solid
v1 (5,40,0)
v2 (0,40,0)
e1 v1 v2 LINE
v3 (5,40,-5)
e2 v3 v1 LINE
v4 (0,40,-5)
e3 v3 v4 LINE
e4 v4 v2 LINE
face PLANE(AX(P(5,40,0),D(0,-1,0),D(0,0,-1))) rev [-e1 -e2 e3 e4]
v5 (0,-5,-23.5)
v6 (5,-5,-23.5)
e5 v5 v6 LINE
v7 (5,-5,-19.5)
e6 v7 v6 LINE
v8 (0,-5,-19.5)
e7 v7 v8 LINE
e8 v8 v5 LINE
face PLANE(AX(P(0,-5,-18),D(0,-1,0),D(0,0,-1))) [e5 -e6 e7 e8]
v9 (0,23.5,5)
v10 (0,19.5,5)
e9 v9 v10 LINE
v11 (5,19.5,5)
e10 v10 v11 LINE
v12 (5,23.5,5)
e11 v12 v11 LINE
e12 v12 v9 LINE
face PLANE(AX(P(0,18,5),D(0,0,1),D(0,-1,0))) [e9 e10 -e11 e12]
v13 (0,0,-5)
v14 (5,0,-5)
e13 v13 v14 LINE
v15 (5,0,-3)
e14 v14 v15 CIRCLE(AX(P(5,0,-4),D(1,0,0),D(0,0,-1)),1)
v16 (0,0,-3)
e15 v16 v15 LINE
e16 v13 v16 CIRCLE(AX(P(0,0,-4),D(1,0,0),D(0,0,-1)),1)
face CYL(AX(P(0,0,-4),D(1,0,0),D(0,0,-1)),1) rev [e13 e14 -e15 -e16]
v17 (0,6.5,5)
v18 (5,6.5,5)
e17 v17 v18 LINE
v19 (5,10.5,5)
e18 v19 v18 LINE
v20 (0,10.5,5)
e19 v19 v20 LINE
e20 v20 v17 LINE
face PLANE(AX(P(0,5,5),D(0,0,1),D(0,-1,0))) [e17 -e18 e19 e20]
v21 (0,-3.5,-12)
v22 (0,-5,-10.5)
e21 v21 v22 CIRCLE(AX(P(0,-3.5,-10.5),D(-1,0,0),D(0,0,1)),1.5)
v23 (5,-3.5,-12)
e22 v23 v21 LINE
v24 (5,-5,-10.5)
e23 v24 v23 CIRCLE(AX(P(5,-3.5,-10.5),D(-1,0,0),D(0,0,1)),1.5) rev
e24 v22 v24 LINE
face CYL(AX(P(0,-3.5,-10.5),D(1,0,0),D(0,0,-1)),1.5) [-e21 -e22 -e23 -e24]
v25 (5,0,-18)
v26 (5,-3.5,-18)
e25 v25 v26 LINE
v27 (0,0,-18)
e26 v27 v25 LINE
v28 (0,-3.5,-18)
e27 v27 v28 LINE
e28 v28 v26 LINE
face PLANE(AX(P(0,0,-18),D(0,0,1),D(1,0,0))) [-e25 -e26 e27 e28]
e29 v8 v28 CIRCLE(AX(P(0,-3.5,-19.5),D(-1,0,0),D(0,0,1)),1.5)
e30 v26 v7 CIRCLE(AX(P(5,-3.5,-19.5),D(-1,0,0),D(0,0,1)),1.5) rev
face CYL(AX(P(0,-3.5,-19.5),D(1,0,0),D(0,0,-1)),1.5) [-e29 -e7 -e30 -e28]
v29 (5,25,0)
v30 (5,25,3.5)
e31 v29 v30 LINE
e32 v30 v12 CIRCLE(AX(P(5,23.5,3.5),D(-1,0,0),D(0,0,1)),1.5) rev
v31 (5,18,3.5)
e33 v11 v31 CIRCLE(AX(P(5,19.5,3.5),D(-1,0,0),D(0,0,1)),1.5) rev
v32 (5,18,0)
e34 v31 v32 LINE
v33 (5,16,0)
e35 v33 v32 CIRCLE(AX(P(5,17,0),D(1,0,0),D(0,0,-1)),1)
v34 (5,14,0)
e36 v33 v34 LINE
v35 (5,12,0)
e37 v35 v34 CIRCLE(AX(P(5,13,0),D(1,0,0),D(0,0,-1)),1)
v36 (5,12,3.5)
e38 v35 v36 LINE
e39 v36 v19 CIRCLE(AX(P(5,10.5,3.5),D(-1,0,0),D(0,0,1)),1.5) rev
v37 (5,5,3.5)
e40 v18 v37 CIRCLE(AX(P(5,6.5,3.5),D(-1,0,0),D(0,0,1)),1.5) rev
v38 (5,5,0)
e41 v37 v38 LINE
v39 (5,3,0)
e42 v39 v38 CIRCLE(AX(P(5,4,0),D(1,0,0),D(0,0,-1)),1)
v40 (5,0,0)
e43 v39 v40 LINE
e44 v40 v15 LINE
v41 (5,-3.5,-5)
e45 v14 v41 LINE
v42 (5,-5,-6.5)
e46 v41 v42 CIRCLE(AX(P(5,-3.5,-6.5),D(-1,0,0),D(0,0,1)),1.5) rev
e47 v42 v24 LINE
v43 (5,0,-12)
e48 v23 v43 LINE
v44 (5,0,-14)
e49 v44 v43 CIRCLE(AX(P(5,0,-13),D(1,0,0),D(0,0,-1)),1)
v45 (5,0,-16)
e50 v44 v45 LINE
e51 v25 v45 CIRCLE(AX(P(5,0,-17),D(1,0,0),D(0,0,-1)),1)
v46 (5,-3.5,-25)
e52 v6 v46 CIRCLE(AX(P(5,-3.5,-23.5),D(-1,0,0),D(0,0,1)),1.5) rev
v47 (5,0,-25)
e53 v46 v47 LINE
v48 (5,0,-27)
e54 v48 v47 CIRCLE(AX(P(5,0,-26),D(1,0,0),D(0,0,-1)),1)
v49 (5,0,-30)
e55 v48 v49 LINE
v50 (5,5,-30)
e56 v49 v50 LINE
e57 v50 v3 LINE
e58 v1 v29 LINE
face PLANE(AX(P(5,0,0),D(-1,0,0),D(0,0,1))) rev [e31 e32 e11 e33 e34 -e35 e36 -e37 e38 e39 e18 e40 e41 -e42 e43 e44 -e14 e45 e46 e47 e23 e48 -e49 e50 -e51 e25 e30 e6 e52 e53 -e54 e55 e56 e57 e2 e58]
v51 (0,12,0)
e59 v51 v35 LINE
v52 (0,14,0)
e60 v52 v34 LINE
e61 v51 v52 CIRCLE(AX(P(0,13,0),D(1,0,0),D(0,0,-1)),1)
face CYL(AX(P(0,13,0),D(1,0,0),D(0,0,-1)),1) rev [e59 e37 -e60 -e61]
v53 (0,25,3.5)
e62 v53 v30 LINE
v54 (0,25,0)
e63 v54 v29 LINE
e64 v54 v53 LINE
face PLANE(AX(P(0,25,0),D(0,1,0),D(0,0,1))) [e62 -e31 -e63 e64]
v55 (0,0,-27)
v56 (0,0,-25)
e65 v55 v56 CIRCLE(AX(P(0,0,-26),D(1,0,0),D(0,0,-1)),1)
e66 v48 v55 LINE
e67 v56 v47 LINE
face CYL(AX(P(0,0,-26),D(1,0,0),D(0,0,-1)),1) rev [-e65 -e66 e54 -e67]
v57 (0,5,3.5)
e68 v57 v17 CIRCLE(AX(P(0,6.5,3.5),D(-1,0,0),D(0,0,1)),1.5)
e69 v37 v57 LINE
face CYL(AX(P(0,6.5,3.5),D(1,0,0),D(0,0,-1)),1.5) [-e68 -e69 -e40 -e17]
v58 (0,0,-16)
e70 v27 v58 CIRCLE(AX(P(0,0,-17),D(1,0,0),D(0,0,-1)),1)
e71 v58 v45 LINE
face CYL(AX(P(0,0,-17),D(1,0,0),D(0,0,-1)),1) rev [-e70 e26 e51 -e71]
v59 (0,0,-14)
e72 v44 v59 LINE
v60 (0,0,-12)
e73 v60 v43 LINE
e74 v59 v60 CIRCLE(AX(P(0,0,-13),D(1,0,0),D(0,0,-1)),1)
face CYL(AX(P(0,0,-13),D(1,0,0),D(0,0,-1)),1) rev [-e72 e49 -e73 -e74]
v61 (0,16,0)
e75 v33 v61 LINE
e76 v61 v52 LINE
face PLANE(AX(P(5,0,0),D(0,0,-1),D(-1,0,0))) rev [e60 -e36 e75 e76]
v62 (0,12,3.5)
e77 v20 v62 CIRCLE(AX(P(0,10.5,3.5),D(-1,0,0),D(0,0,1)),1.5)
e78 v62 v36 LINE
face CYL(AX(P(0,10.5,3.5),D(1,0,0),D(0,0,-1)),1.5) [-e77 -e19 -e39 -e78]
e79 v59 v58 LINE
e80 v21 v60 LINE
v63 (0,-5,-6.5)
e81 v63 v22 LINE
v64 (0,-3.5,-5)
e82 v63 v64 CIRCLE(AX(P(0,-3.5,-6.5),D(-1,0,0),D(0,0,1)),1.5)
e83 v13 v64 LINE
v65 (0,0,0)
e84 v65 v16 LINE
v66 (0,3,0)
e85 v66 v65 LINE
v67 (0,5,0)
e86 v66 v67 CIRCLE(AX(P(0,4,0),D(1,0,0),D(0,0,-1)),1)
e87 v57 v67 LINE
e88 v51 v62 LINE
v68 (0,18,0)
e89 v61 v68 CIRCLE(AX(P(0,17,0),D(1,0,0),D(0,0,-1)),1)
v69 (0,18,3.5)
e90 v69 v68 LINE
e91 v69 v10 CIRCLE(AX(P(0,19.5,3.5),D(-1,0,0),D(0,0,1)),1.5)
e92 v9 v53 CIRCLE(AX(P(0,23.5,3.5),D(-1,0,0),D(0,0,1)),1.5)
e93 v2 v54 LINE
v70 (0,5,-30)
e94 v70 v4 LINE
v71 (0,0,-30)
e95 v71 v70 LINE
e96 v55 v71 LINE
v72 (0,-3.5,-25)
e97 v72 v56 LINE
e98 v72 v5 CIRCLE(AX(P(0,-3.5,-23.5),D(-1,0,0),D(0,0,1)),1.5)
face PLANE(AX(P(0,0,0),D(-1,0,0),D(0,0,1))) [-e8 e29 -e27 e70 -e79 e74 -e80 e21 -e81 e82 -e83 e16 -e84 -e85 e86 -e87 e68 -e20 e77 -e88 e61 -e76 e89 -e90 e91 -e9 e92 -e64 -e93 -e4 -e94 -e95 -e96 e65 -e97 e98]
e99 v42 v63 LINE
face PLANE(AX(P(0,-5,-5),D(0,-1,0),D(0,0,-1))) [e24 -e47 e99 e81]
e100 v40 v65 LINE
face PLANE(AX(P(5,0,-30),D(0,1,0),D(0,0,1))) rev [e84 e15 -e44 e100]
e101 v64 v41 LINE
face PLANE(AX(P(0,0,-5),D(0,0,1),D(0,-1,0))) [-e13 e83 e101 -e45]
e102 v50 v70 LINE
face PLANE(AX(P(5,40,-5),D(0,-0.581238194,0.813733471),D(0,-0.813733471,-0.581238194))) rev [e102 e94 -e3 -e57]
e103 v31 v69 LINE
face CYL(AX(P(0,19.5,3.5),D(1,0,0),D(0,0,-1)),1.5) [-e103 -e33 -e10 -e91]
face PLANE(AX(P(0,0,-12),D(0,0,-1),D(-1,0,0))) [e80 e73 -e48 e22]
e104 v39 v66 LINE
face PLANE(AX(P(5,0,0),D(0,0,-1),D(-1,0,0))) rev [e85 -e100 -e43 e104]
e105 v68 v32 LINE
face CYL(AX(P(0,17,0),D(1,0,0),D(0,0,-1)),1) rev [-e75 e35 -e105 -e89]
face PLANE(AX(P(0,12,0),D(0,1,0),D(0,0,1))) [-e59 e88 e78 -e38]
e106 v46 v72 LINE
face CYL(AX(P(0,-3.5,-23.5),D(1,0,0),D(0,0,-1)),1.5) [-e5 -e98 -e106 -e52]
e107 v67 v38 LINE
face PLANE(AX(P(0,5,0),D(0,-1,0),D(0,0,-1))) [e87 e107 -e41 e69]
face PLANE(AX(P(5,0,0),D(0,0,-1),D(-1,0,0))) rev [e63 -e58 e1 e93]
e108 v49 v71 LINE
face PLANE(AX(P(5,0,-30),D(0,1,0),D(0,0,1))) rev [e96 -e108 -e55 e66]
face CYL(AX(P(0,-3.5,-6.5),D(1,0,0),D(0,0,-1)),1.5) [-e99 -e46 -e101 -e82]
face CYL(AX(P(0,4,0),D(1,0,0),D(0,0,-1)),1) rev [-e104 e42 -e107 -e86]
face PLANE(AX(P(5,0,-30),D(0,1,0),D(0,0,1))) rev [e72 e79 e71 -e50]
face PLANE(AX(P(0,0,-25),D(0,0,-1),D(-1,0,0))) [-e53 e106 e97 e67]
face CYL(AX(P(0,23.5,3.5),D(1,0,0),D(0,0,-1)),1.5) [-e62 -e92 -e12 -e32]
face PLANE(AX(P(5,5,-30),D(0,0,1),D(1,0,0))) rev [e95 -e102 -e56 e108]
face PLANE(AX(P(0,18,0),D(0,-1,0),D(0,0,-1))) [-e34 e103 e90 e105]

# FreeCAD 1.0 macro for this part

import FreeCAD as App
import Part
import Sketcher
Q = App.Units.Quantity


def edges_at(feature, points):
    """Names of the edges that pass closest to the given points."""
    edges = feature.Shape.Edges
    near = lambda p: min(range(len(edges)), key=lambda i: edges[i].distToShape(Part.Vertex(*p))[0])
    return sorted({f"Edge{near(p) + 1}" for p in points})


def add_polygon(sketch, points):
    """Adds a closed chain of lines whose ends are joined by coincident constraints."""
    first, n = sketch.GeometryCount, len(points)
    for a, b in zip(points, points[1:] + points[:1]):
        sketch.addGeometry(Part.LineSegment(App.Vector(*a, 0), App.Vector(*b, 0)), False)
    for i in range(n):
        sketch.addConstraint(Sketcher.Constraint("Coincident", first + i, 2, first + (i + 1) % n, 1))

doc = App.newDocument("Part")
body = doc.addObject("PartDesign::Body", "Body")

# Sketch on YZ plane
sketch1 = body.newObject("Sketcher::SketchObject", "Sketch")
sketch1.AttachmentSupport = (doc.getObject("YZ_Plane"), [""])
sketch1.MapMode = "FlatFace"
add_polygon(sketch1, [(40, 0), (0, 0), (0, -30), (5, -30), (40, -5)])  # lines 0-4
sketch1.addConstraint(Sketcher.Constraint("Horizontal", 0))
sketch1.addConstraint(Sketcher.Constraint("Vertical", 1))
sketch1.addConstraint(Sketcher.Constraint("Horizontal", 2))
sketch1.addConstraint(Sketcher.Constraint("Vertical", 4))
sketch1.addConstraint(Sketcher.Constraint("Coincident", 0, 2, -1, 1))
sketch1.addConstraint(Sketcher.Constraint("Equal", 2, 4))
sketch1.addConstraint(Sketcher.Constraint("DistanceX", 0, 2, 0, 1, Q("40 mm")))
sketch1.addConstraint(Sketcher.Constraint("DistanceX", 2, 1, 2, 2, Q("5 mm")))
sketch1.addConstraint(Sketcher.Constraint("DistanceY", 1, 2, 1, 1, Q("30 mm")))
pad1 = body.newObject("PartDesign::Pad", "Pad")
pad1.Profile = sketch1
pad1.Length = 5

# Sketch on YZ plane
sketch2 = body.newObject("Sketcher::SketchObject", "Sketch001")
sketch2.AttachmentSupport = (doc.getObject("YZ_Plane"), [""])
sketch2.MapMode = "FlatFace"
sketch2.AttachmentOffset = App.Placement(App.Vector(0, 0, 5), App.Rotation())
add_polygon(sketch2, [(0, -5), (-5, -5), (-5, -12), (0, -12)])  # lines 0-3
add_polygon(sketch2, [(0, -18), (-5, -18), (-5, -25), (0, -25)])  # lines 4-7
add_polygon(sketch2, [(25, 5), (18, 5), (18, 0), (25, 0)])  # lines 8-11
add_polygon(sketch2, [(12, 5), (5, 5), (5, 0), (12, 0)])  # lines 12-15
sketch2.addConstraint(Sketcher.Constraint("Horizontal", 0))
sketch2.addConstraint(Sketcher.Constraint("Vertical", 1))
sketch2.addConstraint(Sketcher.Constraint("Horizontal", 2))
sketch2.addConstraint(Sketcher.Constraint("Vertical", 3))
sketch2.addConstraint(Sketcher.Constraint("Horizontal", 4))
sketch2.addConstraint(Sketcher.Constraint("Vertical", 5))
sketch2.addConstraint(Sketcher.Constraint("Horizontal", 6))
sketch2.addConstraint(Sketcher.Constraint("Vertical", 7))
sketch2.addConstraint(Sketcher.Constraint("Horizontal", 8))
sketch2.addConstraint(Sketcher.Constraint("Vertical", 9))
sketch2.addConstraint(Sketcher.Constraint("Horizontal", 10))
sketch2.addConstraint(Sketcher.Constraint("Vertical", 11))
sketch2.addConstraint(Sketcher.Constraint("Horizontal", 12))
sketch2.addConstraint(Sketcher.Constraint("Vertical", 13))
sketch2.addConstraint(Sketcher.Constraint("Horizontal", 14))
sketch2.addConstraint(Sketcher.Constraint("Vertical", 15))
sketch2.addConstraint(Sketcher.Constraint("Symmetric", 0, 2, 12, 2, -1, 1))
sketch2.addConstraint(Sketcher.Constraint("PointOnObject", 2, 2, -2))
sketch2.addConstraint(Sketcher.Constraint("PointOnObject", 6, 2, -2))
sketch2.addConstraint(Sketcher.Constraint("PointOnObject", 9, 2, -1))
sketch2.addConstraint(Sketcher.Constraint("PointOnObject", 13, 2, -1))
sketch2.addConstraint(Sketcher.Constraint("Horizontal", 11, 2, 12, 2))
sketch2.addConstraint(Sketcher.Constraint("Vertical", 1, 2, 4, 2))
sketch2.addConstraint(Sketcher.Constraint("Equal", 10, 12))
sketch2.addConstraint(Sketcher.Constraint("Equal", 14, 1))
sketch2.addConstraint(Sketcher.Constraint("Equal", 3, 5))
sketch2.addConstraint(Sketcher.Constraint("Equal", 6, 9))
sketch2.addConstraint(Sketcher.Constraint("DistanceX", 0, 2, 0, 1, Q("5 mm")))
sketch2.addConstraint(Sketcher.Constraint("DistanceX", 8, 2, 8, 1, Q("7 mm")))
sketch2.addConstraint(Sketcher.Constraint("DistanceY", 4, 2, -1, 1, Q("18 mm")))
sketch2.addConstraint(Sketcher.Constraint("DistanceX", -1, 1, 8, 2, Q("18 mm")))
pad2 = body.newObject("PartDesign::Pad", "Pad001")
pad2.Profile = sketch2
pad2.Length = 5
pad2.Reversed = True

# Sketch on YZ plane
sketch3 = body.newObject("Sketcher::SketchObject", "Sketch002")
sketch3.AttachmentSupport = (doc.getObject("YZ_Plane"), [""])
sketch3.MapMode = "FlatFace"
sketch3.AttachmentOffset = App.Placement(App.Vector(0, 0, 5), App.Rotation())
sketch3.addGeometry(Part.Circle(App.Vector(0, -4, 0), App.Vector(0, 0, 1), 1), False)
sketch3.addGeometry(Part.Circle(App.Vector(0, -13, 0), App.Vector(0, 0, 1), 1), False)
sketch3.addGeometry(Part.Circle(App.Vector(0, -17, 0), App.Vector(0, 0, 1), 1), False)
sketch3.addGeometry(Part.Circle(App.Vector(0, -26, 0), App.Vector(0, 0, 1), 1), False)
sketch3.addGeometry(Part.Circle(App.Vector(4, 0, 0), App.Vector(0, 0, 1), 1), False)
sketch3.addGeometry(Part.Circle(App.Vector(13, 0, 0), App.Vector(0, 0, 1), 1), False)
sketch3.addGeometry(Part.Circle(App.Vector(17, 0, 0), App.Vector(0, 0, 1), 1), False)
sketch3.addConstraint(Sketcher.Constraint("Equal", 0, 1))
sketch3.addConstraint(Sketcher.Constraint("Equal", 1, 2))
sketch3.addConstraint(Sketcher.Constraint("Equal", 2, 3))
sketch3.addConstraint(Sketcher.Constraint("Equal", 3, 4))
sketch3.addConstraint(Sketcher.Constraint("Equal", 4, 5))
sketch3.addConstraint(Sketcher.Constraint("Equal", 5, 6))
sketch3.addConstraint(Sketcher.Constraint("PointOnObject", 0, 3, -2))
sketch3.addConstraint(Sketcher.Constraint("PointOnObject", 1, 3, -2))
sketch3.addConstraint(Sketcher.Constraint("PointOnObject", 2, 3, -2))
sketch3.addConstraint(Sketcher.Constraint("PointOnObject", 3, 3, -2))
sketch3.addConstraint(Sketcher.Constraint("PointOnObject", 4, 3, -1))
sketch3.addConstraint(Sketcher.Constraint("PointOnObject", 5, 3, -1))
sketch3.addConstraint(Sketcher.Constraint("PointOnObject", 6, 3, -1))
sketch3.addConstraint(Sketcher.Constraint("Diameter", 0, Q("2 mm")))
sketch3.addConstraint(Sketcher.Constraint("DistanceY", 0, 3, -1, 1, Q("4 mm")))
sketch3.addConstraint(Sketcher.Constraint("DistanceY", 1, 3, -1, 1, Q("13 mm")))
sketch3.addConstraint(Sketcher.Constraint("DistanceY", 2, 3, -1, 1, Q("17 mm")))
sketch3.addConstraint(Sketcher.Constraint("DistanceY", 3, 3, -1, 1, Q("26 mm")))
sketch3.addConstraint(Sketcher.Constraint("DistanceX", -1, 1, 4, 3, Q("4 mm")))
sketch3.addConstraint(Sketcher.Constraint("DistanceX", -1, 1, 5, 3, Q("13 mm")))
sketch3.addConstraint(Sketcher.Constraint("DistanceX", -1, 1, 6, 3, Q("17 mm")))
pocket1 = body.newObject("PartDesign::Pocket", "Pocket")
pocket1.Profile = sketch3
pocket1.Length = 5
doc.recompute()

fillet = body.newObject("PartDesign::Fillet", "Fillet")
fillet.Base = (pocket1, edges_at(pocket1, [
    (2.5, -5, -25),
    (2.5, -5, -12),
    (2.5, -5, -18),
    (2.5, 25, 5),
    (2.5, 18, 5),
    (2.5, -5, -5),
    (2.5, 5, 5),
    (2.5, 12, 5),
]))
fillet.Radius = 1.5

doc.recompute()
